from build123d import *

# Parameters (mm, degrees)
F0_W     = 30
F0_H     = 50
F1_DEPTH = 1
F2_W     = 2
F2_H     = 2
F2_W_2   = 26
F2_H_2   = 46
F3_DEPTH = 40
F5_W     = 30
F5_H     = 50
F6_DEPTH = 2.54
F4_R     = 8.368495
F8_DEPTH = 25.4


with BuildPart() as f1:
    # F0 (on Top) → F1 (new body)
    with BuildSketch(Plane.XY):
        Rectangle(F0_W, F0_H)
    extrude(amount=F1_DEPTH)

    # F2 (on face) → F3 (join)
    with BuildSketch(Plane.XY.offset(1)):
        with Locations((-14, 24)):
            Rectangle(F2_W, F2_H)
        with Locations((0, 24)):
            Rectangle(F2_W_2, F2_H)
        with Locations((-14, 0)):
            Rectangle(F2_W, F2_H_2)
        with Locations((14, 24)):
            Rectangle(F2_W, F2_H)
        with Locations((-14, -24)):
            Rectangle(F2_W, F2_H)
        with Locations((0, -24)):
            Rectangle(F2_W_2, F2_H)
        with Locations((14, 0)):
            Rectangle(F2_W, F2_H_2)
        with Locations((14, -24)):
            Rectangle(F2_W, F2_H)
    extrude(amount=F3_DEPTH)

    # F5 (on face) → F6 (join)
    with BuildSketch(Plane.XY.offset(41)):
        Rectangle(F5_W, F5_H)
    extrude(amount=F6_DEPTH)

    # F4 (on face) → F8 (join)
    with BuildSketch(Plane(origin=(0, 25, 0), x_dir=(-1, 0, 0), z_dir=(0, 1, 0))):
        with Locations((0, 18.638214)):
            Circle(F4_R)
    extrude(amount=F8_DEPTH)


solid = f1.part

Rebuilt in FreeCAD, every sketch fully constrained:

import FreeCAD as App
import Part
import Sketcher

V = App.Vector

doc = App.newDocument("Part")
body = doc.addObject("PartDesign::Body", "Body")

sketch1 = body.newObject("Sketcher::SketchObject", "Sketch")
sketch1.AttachmentSupport = (doc.getObject("XY_Plane"), [""])
sketch1.MapMode = "FlatFace"
sketch1.addGeometry([
    Part.LineSegment(V(-15, 25, 0), V(-15, -25, 0)),
    Part.LineSegment(V(-15, -25, 0), V(15, -25, 0)),
    Part.LineSegment(V(15, -25, 0), V(15, 25, 0)),
    Part.LineSegment(V(15, 25, 0), V(-15, 25, 0)),
], False)
sketch1.addConstraint([
    Sketcher.Constraint("Coincident", 0, 2, 1, 1),
    Sketcher.Constraint("Coincident", 1, 2, 2, 1),
    Sketcher.Constraint("Coincident", 2, 2, 3, 1),
    Sketcher.Constraint("Coincident", 3, 2, 0, 1),
    Sketcher.Constraint("Vertical", 0),
    Sketcher.Constraint("Horizontal", 1),
    Sketcher.Constraint("Vertical", 2),
    Sketcher.Constraint("Horizontal", 3),
    Sketcher.Constraint("Symmetric", 0, 2, 2, 2, -1, 1),
    Sketcher.Constraint("DistanceX", 1, 1, 1, 2, 30.0),
    Sketcher.Constraint("DistanceY", 0, 2, 0, 1, 50.0),
])
pad1 = body.newObject("PartDesign::Pad", "Pad")
pad1.Profile = sketch1
pad1.Length = 1

sketch2 = body.newObject("Sketcher::SketchObject", "Sketch001")
sketch2.AttachmentSupport = (doc.getObject("XY_Plane"), [""])
sketch2.MapMode = "FlatFace"
sketch2.AttachmentOffset = App.Placement(V(0, 0, 1), App.Rotation())
sketch2.addGeometry([
    Part.LineSegment(V(-15, -25, 0), V(15, -25, 0)),
    Part.LineSegment(V(15, -25, 0), V(15, 25, 0)),
    Part.LineSegment(V(15, 25, 0), V(-15, 25, 0)),
    Part.LineSegment(V(-15, 25, 0), V(-15, -25, 0)),
    Part.LineSegment(V(13, -23, 0), V(-13, -23, 0)),
    Part.LineSegment(V(-13, -23, 0), V(-13, 23, 0)),
    Part.LineSegment(V(-13, 23, 0), V(13, 23, 0)),
    Part.LineSegment(V(13, 23, 0), V(13, -23, 0)),
], False)
sketch2.addConstraint([
    Sketcher.Constraint("Coincident", 0, 2, 1, 1),
    Sketcher.Constraint("Coincident", 1, 2, 2, 1),
    Sketcher.Constraint("Coincident", 2, 2, 3, 1),
    Sketcher.Constraint("Coincident", 3, 2, 0, 1),
    Sketcher.Constraint("Coincident", 4, 2, 5, 1),
    Sketcher.Constraint("Coincident", 5, 2, 6, 1),
    Sketcher.Constraint("Coincident", 6, 2, 7, 1),
    Sketcher.Constraint("Coincident", 7, 2, 4, 1),
    Sketcher.Constraint("Horizontal", 0),
    Sketcher.Constraint("Vertical", 1),
    Sketcher.Constraint("Horizontal", 2),
    Sketcher.Constraint("Vertical", 3),
    Sketcher.Constraint("Horizontal", 4),
    Sketcher.Constraint("Vertical", 5),
    Sketcher.Constraint("Horizontal", 6),
    Sketcher.Constraint("Vertical", 7),
    Sketcher.Constraint("Symmetric", 0, 2, 2, 2, -1, 1),
    Sketcher.Constraint("Symmetric", 4, 2, 6, 2, -1, 1),
    Sketcher.Constraint("DistanceX", 0, 1, 0, 2, 30.0),
    Sketcher.Constraint("DistanceX", 4, 2, 4, 1, 26.0),
    Sketcher.Constraint("DistanceY", 1, 1, 1, 2, 50.0),
    Sketcher.Constraint("DistanceY", 5, 1, 5, 2, 46.0),
])
pad2 = body.newObject("PartDesign::Pad", "Pad001")
pad2.Profile = sketch2
pad2.Length = 40

sketch3 = body.newObject("Sketcher::SketchObject", "Sketch002")
sketch3.AttachmentSupport = (doc.getObject("XY_Plane"), [""])
sketch3.MapMode = "FlatFace"
sketch3.AttachmentOffset = App.Placement(V(0, 0, 41), App.Rotation())
sketch3.addGeometry([
    Part.LineSegment(V(-15, 25, 0), V(-15, -25, 0)),
    Part.LineSegment(V(-15, -25, 0), V(15, -25, 0)),
    Part.LineSegment(V(15, -25, 0), V(15, 25, 0)),
    Part.LineSegment(V(15, 25, 0), V(-15, 25, 0)),
], False)
sketch3.addConstraint([
    Sketcher.Constraint("Coincident", 0, 2, 1, 1),
    Sketcher.Constraint("Coincident", 1, 2, 2, 1),
    Sketcher.Constraint("Coincident", 2, 2, 3, 1),
    Sketcher.Constraint("Coincident", 3, 2, 0, 1),
    Sketcher.Constraint("Vertical", 0),
    Sketcher.Constraint("Horizontal", 1),
    Sketcher.Constraint("Vertical", 2),
    Sketcher.Constraint("Horizontal", 3),
    Sketcher.Constraint("Symmetric", 0, 2, 2, 2, -1, 1),
    Sketcher.Constraint("DistanceX", 1, 1, 1, 2, 30.0),
    Sketcher.Constraint("DistanceY", 0, 2, 0, 1, 50.0),
])
pad3 = body.newObject("PartDesign::Pad", "Pad002")
pad3.Profile = sketch3
pad3.Length = 2.54

sketch4 = body.newObject("Sketcher::SketchObject", "Sketch003")
sketch4.AttachmentSupport = (doc.getObject("XZ_Plane"), [""])
sketch4.MapMode = "FlatFace"
sketch4.AttachmentOffset = App.Placement(V(0, 0, -25), App.Rotation())
sketch4.addGeometry(Part.Circle(V(0, 18.638214, 0), V(0, 0, 1), 8.368495), False)
sketch4.addConstraint([
    Sketcher.Constraint("PointOnObject", 0, 3, -2),
    Sketcher.Constraint("Diameter", 0, 16.73699),
    Sketcher.Constraint("DistanceY", -1, 1, 0, 3, 18.638214),
])
pad4 = body.newObject("PartDesign::Pad", "Pad003")
pad4.Profile = sketch4
pad4.Length = 25.4
pad4.Reversed = True

doc.recompute()
